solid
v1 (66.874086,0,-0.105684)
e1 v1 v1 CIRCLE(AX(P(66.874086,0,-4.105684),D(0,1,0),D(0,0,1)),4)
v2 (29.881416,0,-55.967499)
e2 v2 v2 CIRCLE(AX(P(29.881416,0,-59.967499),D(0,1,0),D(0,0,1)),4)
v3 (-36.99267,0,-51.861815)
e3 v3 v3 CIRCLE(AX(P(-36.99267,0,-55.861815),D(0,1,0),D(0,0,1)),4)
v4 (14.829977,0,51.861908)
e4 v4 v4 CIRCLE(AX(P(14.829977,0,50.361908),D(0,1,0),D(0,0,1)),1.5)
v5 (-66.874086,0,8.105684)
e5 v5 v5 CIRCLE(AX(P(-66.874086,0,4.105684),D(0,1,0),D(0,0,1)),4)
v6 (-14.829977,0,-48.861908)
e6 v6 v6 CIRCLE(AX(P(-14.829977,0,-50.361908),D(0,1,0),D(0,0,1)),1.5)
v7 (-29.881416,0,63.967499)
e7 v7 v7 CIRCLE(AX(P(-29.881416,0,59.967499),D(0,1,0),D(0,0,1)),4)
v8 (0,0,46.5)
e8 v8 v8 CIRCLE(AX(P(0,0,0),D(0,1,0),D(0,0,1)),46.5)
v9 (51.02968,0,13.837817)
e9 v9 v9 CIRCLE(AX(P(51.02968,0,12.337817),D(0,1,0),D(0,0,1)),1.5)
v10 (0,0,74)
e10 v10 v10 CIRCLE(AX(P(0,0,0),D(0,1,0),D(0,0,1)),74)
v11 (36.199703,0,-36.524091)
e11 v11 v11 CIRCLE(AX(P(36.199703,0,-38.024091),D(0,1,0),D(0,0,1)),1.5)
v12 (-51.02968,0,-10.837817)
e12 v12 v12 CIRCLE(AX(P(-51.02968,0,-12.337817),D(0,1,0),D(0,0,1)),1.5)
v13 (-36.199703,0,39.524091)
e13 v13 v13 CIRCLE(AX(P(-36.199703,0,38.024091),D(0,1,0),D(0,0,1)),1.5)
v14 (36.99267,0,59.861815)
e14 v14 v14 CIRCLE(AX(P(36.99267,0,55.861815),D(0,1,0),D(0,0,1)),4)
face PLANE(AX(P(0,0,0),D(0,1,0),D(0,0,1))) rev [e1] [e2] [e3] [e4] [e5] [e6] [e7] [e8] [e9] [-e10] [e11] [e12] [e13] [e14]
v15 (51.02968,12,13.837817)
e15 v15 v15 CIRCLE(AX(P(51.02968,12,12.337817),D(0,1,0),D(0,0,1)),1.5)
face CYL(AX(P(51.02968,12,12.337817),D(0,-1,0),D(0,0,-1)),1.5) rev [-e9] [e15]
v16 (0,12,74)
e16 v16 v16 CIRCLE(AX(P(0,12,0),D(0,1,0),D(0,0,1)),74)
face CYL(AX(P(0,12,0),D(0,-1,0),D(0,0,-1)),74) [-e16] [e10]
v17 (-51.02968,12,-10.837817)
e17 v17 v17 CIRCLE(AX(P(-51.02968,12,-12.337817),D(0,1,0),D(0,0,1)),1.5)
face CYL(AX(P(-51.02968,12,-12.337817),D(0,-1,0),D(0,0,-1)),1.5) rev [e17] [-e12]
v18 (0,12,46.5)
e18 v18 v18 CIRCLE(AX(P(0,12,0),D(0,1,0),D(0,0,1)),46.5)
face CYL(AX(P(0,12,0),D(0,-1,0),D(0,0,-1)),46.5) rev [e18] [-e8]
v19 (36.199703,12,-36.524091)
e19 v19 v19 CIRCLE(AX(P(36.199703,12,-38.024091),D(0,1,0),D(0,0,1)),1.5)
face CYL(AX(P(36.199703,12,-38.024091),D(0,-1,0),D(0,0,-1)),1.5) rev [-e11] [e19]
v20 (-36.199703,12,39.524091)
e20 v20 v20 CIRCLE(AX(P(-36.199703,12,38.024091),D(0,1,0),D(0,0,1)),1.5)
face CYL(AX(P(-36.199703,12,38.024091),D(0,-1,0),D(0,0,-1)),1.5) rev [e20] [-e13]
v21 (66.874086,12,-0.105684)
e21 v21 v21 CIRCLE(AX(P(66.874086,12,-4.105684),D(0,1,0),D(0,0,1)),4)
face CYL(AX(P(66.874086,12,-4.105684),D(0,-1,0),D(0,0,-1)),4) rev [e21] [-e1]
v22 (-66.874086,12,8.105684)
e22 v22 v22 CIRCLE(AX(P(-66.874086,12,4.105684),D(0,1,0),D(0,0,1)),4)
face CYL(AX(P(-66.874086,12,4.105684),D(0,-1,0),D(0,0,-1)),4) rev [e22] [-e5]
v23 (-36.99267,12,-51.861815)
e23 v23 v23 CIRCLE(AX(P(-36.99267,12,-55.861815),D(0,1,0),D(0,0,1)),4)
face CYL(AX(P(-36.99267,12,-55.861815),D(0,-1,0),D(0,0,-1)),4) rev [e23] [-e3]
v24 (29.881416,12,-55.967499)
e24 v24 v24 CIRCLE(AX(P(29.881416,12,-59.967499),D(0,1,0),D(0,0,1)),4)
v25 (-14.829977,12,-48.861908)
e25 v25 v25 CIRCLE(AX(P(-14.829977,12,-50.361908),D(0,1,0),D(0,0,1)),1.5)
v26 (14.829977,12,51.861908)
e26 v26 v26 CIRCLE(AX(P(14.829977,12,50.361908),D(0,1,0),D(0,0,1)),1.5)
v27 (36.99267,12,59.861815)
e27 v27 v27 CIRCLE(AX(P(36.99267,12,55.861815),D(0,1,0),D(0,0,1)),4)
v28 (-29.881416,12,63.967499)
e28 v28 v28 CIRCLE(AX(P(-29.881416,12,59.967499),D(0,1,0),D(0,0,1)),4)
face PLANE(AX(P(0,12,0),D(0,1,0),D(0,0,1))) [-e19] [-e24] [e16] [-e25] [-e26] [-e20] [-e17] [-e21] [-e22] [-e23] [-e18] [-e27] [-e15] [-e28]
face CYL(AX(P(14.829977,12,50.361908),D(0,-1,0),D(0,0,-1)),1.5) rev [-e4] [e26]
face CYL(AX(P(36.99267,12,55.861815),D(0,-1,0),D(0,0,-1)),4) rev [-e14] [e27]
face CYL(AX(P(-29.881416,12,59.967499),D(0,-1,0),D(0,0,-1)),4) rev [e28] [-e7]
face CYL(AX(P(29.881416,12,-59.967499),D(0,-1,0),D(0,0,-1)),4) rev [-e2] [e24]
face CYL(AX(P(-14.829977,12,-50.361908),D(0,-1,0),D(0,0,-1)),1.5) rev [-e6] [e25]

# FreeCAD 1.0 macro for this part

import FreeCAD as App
import Part
import Sketcher

V = App.Vector

doc = App.newDocument("Part")
body = doc.addObject("PartDesign::Body", "Body")

# Sketch on XZ plane
sketch1 = body.newObject("Sketcher::SketchObject", "Sketch")
sketch1.AttachmentSupport = (doc.getObject("XZ_Plane"), [""])
sketch1.MapMode = "FlatFace"
sketch1.addGeometry(Part.Circle(V(0, 0, 0), V(0, 0, 1), 74), False)
sketch1.addGeometry(Part.Circle(V(-36.99267, -55.861815, 0), V(0, 0, 1), 4), False)
sketch1.addGeometry(Part.Circle(V(-51.02968, -12.337817, 0), V(0, 0, 1), 1.5), False)
sketch1.addGeometry(Part.Circle(V(-14.829977, -50.361908, 0), V(0, 0, 1), 1.5), False)
sketch1.addGeometry(Part.Circle(V(-66.874086, 4.105684, 0), V(0, 0, 1), 4), False)
sketch1.addGeometry(Part.Circle(V(-36.199703, 38.024091, 0), V(0, 0, 1), 1.5), False)
sketch1.addGeometry(Part.Circle(V(0, 0, 0), V(0, 0, 1), 46.5), False)
sketch1.addGeometry(Part.Circle(V(-29.881416, 59.967499, 0), V(0, 0, 1), 4), False)
sketch1.addGeometry(Part.Circle(V(29.881416, -59.967499, 0), V(0, 0, 1), 4), False)
sketch1.addGeometry(Part.Circle(V(36.199703, -38.024091, 0), V(0, 0, 1), 1.5), False)
sketch1.addGeometry(Part.Circle(V(66.874086, -4.105684, 0), V(0, 0, 1), 4), False)
sketch1.addGeometry(Part.Circle(V(14.829977, 50.361908, 0), V(0, 0, 1), 1.5), False)
sketch1.addGeometry(Part.Circle(V(51.02968, 12.337817, 0), V(0, 0, 1), 1.5), False)
sketch1.addGeometry(Part.Circle(V(36.99267, 55.861815, 0), V(0, 0, 1), 4), False)
sketch1.addConstraint(Sketcher.Constraint("Coincident", 0, 3, -1, 1))
sketch1.addConstraint(Sketcher.Constraint("Coincident", 6, 3, -1, 1))
sketch1.addConstraint(Sketcher.Constraint("Equal", 2, 3))
sketch1.addConstraint(Sketcher.Constraint("Equal", 1, 4))
sketch1.addConstraint(Sketcher.Constraint("Equal", 3, 5))
sketch1.addConstraint(Sketcher.Constraint("Equal", 4, 7))
sketch1.addConstraint(Sketcher.Constraint("Equal", 7, 8))
sketch1.addConstraint(Sketcher.Constraint("Equal", 5, 9))
sketch1.addConstraint(Sketcher.Constraint("Equal", 8, 10))
sketch1.addConstraint(Sketcher.Constraint("Equal", 9, 11))
sketch1.addConstraint(Sketcher.Constraint("Equal", 11, 12))
sketch1.addConstraint(Sketcher.Constraint("Equal", 10, 13))
sketch1.addConstraint(Sketcher.Constraint("Symmetric", 7, 3, 8, 3, -1, 1))
sketch1.addConstraint(Sketcher.Constraint("Symmetric", 5, 3, 9, 3, -1, 1))
sketch1.addConstraint(Sketcher.Constraint("Symmetric", 4, 3, 10, 3, -1, 1))
sketch1.addConstraint(Sketcher.Constraint("Symmetric", 3, 3, 11, 3, -1, 1))
sketch1.addConstraint(Sketcher.Constraint("Symmetric", 2, 3, 12, 3, -1, 1))
sketch1.addConstraint(Sketcher.Constraint("Symmetric", 1, 3, 13, 3, -1, 1))
sketch1.addConstraint(Sketcher.Constraint("Diameter", 0, 148.0))
sketch1.addConstraint(Sketcher.Constraint("Diameter", 1, 8.0))
sketch1.addConstraint(Sketcher.Constraint("Diameter", 2, 3.0))
sketch1.addConstraint(Sketcher.Constraint("Diameter", 6, 93.0))
sketch1.addConstraint(Sketcher.Constraint("DistanceY", 1, 3, 2, 3, 43.523998))
sketch1.addConstraint(Sketcher.Constraint("DistanceY", 3, 3, 5, 3, 88.385999))
sketch1.addConstraint(Sketcher.Constraint("DistanceY", -1, 1, 7, 3, 59.967499))
sketch1.addConstraint(Sketcher.Constraint("DistanceY", 2, 3, 4, 3, 16.443501))
sketch1.addConstraint(Sketcher.Constraint("DistanceX", 1, 3, -1, 1, 36.99267))
sketch1.addConstraint(Sketcher.Constraint("DistanceX", 2, 3, -1, 1, 51.02968))
sketch1.addConstraint(Sketcher.Constraint("DistanceY", -1, 1, 5, 3, 38.024091))
sketch1.addConstraint(Sketcher.Constraint("DistanceY", 3, 3, 2, 3, 38.024091))
sketch1.addConstraint(Sketcher.Constraint("DistanceX", 4, 3, 3, 3, 52.044108))
sketch1.addConstraint(Sketcher.Constraint("DistanceX", 4, 3, 7, 3, 36.99267))
sketch1.addConstraint(Sketcher.Constraint("DistanceX", 3, 3, 9, 3, 51.02968))
sketch1.addConstraint(Sketcher.Constraint("DistanceX", 3, 3, -1, 1, 14.829977))
pad1 = body.newObject("PartDesign::Pad", "Pad")
pad1.Profile = sketch1
pad1.Length = 12
pad1.Reversed = True

doc.recompute()
